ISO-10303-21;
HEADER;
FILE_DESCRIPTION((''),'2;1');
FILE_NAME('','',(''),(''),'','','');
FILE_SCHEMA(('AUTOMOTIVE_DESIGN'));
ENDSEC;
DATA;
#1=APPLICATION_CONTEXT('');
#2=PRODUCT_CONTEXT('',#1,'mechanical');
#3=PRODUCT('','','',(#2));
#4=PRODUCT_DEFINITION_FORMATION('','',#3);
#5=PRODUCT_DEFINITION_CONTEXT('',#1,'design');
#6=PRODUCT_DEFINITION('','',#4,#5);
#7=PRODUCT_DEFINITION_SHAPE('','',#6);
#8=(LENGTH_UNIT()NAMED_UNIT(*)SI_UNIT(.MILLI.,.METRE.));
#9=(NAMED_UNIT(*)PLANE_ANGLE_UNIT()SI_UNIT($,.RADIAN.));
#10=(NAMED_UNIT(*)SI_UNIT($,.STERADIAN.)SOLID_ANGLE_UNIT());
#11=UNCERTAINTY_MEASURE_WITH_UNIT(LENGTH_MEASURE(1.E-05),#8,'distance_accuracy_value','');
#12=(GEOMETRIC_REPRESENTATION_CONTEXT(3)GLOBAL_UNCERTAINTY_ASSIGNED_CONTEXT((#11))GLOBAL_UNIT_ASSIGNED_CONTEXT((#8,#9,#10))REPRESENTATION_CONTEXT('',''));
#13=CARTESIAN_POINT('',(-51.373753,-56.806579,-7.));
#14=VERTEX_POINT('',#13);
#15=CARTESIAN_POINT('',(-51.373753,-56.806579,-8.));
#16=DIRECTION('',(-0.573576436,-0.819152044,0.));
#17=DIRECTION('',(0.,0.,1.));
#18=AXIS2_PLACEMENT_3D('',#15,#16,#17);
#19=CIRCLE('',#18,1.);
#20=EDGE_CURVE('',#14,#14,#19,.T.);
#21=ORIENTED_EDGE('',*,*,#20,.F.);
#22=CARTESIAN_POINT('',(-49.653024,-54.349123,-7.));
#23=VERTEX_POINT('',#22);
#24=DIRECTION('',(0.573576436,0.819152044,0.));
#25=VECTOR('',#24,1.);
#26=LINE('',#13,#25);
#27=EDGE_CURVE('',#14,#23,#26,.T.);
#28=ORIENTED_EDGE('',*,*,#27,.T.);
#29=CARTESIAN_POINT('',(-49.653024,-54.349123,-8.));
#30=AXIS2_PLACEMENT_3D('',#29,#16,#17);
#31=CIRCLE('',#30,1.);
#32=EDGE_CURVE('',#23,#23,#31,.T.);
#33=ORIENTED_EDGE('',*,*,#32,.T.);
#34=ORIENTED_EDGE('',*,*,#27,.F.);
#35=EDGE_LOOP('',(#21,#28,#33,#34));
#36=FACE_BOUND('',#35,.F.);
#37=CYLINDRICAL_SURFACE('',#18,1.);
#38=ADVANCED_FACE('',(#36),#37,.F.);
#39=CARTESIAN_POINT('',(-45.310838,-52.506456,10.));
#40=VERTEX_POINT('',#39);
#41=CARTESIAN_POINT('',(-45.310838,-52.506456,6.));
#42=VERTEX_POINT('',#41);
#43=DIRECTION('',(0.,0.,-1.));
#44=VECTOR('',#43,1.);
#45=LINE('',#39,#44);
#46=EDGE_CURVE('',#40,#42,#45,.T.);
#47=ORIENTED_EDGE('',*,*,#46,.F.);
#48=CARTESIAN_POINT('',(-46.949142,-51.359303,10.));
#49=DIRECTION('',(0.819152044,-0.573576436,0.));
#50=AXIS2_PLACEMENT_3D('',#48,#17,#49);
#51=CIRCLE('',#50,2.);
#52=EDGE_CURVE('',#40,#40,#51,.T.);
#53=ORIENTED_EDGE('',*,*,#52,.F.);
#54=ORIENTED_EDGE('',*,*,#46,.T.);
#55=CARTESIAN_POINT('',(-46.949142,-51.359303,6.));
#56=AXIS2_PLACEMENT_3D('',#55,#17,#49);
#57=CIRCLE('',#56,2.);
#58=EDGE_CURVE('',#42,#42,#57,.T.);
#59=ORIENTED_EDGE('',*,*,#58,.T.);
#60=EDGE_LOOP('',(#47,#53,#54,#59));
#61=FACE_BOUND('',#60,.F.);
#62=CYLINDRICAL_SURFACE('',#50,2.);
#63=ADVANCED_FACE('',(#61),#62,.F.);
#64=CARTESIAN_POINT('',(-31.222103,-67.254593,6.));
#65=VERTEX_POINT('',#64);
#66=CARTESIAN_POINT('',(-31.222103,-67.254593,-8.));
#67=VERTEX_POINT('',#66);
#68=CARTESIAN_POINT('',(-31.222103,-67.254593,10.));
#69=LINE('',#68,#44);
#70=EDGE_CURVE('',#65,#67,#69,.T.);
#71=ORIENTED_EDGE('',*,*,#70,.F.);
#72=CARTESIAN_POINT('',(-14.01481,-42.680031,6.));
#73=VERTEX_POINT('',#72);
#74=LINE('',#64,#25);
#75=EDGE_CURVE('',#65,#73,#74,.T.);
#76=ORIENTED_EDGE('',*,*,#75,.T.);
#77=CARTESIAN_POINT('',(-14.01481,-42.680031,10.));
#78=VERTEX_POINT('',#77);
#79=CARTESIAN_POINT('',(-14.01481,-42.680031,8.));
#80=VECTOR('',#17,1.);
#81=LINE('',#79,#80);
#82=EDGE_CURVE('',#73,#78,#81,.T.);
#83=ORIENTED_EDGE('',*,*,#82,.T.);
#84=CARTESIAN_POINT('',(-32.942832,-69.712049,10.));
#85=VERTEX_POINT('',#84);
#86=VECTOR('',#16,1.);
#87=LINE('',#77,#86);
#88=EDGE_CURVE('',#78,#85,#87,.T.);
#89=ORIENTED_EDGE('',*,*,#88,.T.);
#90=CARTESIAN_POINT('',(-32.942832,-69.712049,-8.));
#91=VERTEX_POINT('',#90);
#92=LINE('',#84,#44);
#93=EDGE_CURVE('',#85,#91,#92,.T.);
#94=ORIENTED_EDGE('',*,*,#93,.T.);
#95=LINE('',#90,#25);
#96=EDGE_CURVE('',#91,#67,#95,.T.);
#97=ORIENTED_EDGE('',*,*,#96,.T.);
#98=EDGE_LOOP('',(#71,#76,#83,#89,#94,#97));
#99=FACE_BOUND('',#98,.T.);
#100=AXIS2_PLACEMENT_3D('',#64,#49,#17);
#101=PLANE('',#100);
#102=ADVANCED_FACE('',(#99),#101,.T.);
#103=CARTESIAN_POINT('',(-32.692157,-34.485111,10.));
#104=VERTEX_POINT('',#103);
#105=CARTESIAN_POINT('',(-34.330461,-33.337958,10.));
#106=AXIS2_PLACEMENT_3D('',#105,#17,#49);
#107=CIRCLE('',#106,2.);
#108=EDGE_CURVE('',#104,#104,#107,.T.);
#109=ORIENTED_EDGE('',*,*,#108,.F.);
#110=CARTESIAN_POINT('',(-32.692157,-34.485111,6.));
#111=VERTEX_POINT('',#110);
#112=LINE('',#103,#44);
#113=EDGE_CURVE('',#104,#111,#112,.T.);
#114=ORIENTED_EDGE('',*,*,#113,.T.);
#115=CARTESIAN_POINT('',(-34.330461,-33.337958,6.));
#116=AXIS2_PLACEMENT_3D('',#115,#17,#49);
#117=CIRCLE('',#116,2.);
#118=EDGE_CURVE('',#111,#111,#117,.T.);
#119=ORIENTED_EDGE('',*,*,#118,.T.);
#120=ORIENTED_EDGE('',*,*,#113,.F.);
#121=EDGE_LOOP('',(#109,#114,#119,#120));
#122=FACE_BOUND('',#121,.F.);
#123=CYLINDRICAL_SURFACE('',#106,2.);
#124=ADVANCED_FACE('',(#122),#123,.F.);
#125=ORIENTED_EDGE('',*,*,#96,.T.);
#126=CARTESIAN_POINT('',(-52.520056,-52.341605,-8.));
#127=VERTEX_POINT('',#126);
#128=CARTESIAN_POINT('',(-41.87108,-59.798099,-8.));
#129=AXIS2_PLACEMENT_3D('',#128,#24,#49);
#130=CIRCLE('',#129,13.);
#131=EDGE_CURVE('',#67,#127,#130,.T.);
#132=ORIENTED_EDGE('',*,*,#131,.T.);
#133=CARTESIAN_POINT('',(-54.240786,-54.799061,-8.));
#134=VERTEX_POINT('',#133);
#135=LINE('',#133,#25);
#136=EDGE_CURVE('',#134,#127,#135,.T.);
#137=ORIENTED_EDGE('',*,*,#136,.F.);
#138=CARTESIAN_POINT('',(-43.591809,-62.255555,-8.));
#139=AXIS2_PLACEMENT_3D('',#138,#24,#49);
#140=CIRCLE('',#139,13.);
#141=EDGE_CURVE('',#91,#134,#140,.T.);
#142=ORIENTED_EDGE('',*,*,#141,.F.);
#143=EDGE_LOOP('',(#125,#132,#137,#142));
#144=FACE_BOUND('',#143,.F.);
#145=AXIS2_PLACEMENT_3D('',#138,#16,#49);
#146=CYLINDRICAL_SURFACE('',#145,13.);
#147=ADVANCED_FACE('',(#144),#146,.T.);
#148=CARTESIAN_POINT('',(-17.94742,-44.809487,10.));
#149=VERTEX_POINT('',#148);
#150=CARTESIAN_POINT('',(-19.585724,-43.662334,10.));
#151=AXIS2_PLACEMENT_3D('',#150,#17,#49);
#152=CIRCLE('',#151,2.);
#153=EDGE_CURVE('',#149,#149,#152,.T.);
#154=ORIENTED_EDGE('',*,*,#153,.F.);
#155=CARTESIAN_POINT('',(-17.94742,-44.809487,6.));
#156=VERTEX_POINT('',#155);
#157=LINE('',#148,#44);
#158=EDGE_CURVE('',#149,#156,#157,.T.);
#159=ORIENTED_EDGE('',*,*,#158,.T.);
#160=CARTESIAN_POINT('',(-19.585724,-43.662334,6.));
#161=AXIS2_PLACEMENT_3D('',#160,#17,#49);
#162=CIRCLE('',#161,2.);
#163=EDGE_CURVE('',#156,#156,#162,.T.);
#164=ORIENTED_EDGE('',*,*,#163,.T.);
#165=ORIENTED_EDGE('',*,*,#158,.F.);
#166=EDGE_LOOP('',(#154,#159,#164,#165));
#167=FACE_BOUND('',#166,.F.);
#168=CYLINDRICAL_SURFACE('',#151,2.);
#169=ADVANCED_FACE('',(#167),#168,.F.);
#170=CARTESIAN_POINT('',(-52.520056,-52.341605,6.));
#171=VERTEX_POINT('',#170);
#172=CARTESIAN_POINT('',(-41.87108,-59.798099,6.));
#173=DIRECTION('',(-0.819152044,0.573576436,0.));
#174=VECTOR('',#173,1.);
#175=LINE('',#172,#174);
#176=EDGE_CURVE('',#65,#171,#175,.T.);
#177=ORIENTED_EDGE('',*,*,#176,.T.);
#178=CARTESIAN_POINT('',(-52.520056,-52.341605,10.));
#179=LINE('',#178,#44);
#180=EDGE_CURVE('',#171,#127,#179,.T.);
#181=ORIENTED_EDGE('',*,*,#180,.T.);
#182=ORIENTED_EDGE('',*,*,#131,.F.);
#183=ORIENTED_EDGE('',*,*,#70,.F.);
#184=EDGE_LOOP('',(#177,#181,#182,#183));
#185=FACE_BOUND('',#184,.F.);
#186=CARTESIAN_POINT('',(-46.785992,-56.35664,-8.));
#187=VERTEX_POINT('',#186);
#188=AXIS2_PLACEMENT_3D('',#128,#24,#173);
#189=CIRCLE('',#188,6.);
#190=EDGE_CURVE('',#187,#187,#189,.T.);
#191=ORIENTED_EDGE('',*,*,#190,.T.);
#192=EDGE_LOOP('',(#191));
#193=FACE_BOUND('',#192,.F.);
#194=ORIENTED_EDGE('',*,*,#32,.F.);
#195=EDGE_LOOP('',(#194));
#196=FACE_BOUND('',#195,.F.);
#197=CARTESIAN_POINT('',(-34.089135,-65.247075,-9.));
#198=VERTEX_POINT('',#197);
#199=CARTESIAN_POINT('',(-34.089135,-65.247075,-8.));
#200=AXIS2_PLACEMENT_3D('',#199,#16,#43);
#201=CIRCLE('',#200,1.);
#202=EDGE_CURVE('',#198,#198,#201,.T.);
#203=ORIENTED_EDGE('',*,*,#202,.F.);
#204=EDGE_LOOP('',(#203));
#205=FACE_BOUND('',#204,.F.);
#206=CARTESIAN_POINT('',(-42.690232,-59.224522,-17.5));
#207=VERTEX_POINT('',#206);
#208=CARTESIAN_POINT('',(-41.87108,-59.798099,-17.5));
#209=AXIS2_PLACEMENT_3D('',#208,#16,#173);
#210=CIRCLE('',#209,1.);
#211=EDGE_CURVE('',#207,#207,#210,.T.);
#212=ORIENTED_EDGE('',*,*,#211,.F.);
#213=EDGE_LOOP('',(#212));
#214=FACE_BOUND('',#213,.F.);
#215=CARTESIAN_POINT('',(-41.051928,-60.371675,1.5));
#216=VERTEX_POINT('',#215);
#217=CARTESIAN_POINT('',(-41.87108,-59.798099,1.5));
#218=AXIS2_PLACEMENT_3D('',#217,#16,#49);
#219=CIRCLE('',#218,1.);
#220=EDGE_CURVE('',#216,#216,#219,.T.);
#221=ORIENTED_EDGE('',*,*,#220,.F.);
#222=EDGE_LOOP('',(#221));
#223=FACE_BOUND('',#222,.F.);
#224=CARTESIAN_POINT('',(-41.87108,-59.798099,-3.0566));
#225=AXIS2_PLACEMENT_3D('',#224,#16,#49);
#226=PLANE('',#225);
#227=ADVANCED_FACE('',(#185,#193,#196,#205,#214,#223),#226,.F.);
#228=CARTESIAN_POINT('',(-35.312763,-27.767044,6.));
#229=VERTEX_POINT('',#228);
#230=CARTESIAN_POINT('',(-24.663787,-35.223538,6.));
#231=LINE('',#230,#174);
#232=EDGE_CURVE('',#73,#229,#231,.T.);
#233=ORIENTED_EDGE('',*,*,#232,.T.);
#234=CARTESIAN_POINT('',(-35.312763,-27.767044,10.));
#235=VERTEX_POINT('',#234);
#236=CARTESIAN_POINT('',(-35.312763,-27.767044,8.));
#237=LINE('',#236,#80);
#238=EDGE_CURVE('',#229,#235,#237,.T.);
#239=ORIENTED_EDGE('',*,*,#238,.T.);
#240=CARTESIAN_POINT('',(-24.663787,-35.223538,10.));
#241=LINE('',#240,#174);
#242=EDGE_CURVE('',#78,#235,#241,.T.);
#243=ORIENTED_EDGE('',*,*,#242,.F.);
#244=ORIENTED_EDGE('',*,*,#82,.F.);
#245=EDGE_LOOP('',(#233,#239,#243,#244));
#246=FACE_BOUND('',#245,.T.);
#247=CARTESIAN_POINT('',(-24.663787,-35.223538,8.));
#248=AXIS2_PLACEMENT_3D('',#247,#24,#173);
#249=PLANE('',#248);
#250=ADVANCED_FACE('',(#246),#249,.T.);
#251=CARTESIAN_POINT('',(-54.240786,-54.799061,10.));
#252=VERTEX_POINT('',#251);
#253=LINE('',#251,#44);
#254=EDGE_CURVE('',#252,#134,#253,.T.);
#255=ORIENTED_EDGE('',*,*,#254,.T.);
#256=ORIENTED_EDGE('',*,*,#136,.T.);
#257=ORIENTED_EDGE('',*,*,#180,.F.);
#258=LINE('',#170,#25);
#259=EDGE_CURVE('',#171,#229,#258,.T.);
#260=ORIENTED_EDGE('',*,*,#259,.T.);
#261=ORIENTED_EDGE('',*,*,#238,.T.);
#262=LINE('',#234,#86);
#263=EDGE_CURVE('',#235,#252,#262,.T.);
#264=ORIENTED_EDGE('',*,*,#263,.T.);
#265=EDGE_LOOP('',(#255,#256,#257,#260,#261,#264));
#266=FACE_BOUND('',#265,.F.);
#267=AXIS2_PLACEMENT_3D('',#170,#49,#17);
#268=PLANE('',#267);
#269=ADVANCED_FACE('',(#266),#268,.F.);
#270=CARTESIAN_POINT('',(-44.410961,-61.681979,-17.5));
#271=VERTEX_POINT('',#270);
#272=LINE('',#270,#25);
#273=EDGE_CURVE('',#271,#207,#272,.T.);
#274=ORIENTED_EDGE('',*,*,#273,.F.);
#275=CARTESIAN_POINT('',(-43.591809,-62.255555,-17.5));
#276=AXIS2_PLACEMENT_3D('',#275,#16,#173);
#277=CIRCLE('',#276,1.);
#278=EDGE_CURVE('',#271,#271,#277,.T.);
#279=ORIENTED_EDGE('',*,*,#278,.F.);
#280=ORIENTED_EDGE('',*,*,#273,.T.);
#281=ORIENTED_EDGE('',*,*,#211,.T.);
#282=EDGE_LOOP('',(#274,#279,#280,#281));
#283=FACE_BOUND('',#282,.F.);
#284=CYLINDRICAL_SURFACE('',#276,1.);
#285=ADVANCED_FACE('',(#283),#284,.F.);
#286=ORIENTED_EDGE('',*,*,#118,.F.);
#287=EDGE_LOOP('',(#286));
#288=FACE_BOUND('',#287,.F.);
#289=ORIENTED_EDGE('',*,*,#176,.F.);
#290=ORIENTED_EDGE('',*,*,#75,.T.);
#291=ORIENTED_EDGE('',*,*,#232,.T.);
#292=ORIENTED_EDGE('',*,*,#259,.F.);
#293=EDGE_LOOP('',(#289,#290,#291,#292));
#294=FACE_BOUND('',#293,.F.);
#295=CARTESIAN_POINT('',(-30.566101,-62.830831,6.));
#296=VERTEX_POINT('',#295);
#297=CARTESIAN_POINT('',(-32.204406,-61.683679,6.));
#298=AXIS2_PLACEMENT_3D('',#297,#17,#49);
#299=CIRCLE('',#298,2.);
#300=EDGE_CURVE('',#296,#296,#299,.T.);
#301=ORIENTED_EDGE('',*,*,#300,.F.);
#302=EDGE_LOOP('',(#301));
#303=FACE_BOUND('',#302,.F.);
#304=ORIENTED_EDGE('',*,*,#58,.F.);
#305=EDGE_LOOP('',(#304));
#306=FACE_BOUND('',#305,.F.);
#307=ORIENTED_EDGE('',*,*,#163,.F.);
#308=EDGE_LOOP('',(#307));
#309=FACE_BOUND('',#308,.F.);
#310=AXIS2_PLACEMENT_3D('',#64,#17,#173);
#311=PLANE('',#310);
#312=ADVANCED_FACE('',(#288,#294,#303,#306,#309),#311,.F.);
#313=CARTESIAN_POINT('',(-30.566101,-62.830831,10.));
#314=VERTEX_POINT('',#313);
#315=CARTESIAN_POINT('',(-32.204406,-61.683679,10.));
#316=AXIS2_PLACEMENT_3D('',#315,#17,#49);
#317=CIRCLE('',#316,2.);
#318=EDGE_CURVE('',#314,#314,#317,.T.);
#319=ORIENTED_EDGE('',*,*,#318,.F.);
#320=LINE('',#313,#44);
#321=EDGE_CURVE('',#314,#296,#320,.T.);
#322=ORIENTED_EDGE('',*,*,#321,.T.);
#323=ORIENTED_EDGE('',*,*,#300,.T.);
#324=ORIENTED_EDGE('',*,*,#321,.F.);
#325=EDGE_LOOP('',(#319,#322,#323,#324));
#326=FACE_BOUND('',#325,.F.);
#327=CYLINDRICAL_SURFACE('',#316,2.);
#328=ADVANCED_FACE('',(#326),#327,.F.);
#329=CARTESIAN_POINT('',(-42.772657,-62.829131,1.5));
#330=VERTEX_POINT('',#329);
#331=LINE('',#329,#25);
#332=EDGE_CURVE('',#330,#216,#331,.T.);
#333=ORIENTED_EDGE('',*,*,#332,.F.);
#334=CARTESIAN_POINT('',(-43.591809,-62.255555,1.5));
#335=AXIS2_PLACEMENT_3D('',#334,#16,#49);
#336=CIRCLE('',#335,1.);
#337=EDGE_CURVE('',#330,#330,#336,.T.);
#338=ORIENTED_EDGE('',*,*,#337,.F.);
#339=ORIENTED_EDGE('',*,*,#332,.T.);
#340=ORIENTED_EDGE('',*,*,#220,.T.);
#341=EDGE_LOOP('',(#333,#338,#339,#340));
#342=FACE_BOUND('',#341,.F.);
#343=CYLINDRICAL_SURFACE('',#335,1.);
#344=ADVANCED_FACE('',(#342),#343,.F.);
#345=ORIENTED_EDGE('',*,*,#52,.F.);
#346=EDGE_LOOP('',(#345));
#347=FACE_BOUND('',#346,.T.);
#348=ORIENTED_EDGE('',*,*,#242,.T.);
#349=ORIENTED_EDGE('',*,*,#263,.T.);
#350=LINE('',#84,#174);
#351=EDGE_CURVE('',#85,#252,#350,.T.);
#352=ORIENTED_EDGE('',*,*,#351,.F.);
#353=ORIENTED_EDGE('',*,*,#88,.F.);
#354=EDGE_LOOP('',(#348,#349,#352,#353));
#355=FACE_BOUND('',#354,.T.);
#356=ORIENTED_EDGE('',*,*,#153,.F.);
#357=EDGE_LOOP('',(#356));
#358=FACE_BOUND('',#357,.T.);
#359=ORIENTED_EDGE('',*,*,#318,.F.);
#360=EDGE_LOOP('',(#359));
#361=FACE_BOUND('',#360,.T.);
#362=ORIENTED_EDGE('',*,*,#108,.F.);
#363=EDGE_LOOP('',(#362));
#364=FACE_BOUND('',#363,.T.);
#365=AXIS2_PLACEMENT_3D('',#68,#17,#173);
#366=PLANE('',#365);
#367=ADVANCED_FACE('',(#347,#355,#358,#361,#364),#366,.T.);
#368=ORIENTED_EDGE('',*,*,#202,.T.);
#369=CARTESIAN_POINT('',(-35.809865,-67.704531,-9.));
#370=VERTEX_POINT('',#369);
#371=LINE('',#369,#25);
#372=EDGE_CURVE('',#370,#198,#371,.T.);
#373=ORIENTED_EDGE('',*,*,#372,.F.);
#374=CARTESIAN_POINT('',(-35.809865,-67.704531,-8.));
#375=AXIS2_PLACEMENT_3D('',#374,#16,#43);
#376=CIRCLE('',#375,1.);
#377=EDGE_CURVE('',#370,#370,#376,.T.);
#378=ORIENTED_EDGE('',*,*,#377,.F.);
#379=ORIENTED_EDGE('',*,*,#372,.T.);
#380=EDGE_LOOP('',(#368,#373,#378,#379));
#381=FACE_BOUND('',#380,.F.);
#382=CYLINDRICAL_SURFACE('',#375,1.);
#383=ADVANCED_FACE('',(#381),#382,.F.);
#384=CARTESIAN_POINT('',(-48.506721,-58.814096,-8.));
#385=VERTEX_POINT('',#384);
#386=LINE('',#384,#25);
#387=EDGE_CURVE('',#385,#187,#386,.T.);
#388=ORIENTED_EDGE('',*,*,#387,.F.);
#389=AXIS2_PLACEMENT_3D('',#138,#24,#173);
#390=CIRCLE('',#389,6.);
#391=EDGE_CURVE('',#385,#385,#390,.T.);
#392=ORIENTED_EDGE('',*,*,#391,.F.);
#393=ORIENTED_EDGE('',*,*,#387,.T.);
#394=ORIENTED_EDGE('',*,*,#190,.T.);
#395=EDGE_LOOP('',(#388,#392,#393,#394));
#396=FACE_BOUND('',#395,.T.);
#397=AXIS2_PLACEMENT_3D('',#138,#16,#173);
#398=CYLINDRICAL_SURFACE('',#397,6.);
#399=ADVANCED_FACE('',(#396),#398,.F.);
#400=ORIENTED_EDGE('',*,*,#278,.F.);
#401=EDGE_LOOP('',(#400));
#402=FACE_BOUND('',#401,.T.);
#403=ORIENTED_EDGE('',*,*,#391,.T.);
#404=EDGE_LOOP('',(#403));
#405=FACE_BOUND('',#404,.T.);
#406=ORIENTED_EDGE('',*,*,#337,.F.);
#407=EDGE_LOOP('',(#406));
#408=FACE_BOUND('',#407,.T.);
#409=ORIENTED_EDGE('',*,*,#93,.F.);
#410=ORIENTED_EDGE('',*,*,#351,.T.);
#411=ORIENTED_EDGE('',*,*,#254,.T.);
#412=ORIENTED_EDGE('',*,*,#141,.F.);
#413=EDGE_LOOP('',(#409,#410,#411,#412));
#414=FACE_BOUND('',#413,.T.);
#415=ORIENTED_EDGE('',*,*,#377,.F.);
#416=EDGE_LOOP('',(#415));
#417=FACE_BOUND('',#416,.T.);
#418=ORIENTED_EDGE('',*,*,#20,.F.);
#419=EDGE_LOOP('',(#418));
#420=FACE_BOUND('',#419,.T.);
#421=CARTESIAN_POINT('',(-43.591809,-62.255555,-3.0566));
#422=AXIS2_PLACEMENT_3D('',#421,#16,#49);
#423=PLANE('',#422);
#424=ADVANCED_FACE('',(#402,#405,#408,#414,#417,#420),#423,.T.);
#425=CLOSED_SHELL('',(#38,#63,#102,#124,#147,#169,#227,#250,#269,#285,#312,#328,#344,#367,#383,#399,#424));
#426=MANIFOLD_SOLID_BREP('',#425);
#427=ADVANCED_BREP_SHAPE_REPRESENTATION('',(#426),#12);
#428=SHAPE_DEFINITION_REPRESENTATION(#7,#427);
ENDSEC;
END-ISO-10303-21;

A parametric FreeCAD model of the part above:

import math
import FreeCAD as App
import Part
import Sketcher
from FreeCAD import Vector

doc = App.newDocument("Part")
body = doc.addObject("PartDesign::Body", "Body")

# Sketch on XZ plane
sketch1 = doc.addObject("Sketcher::SketchObject", "Sketch")
body.addObject(sketch1)
sketch1.AttachmentSupport = (doc.XZ_Plane, [""])
sketch1.MapMode = "FlatFace"
sketch1.addGeometry([
    Part.LineSegment(Vector(13, 18, 0), Vector(-13, 18, 0)),  # 0
    Part.LineSegment(Vector(-13, 18, 0), Vector(-13, 0, 0)),  # 1
    Part.ArcOfCircle(Part.Circle(Vector(0, 0, 0), Vector(0, 0, 1), 13), math.radians(180), math.radians(360)),  # 2
    Part.LineSegment(Vector(13, 0, 0), Vector(13, 18, 0)),  # 3
    Part.Circle(Vector(0, 0, 0), Vector(0, 0, 1), 6),  # 4
], False)
sketch1.addConstraint([
    Sketcher.Constraint("Coincident", 0, 2, 1, 1),
    Sketcher.Constraint("Tangent", 1, 2, 2, 1),
    Sketcher.Constraint("Tangent", 2, 2, 3, 1),
    Sketcher.Constraint("Coincident", 3, 2, 0, 1),
    Sketcher.Constraint("Horizontal", 0),
    Sketcher.Constraint("Vertical", 1),
    Sketcher.Constraint("Vertical", 3),
    Sketcher.Constraint("Coincident", 2, 3, -1, 1),
    Sketcher.Constraint("Coincident", 4, 3, -1, 1),
    Sketcher.Constraint("Diameter", 4, 12.0),
    Sketcher.Constraint("Radius", 2, 13.0),
    Sketcher.Constraint("DistanceY", 1, 2, 1, 1, 18.0),
])
pad1 = doc.addObject("PartDesign::Pad", "Pad")
body.addObject(pad1)
pad1.Profile = sketch1
pad1.Length = 3

# Sketch on XZ plane
sketch2 = doc.addObject("Sketcher::SketchObject", "Sketch001")
body.addObject(sketch2)
sketch2.AttachmentSupport = (doc.XZ_Plane, [""])
sketch2.MapMode = "FlatFace"
sketch2.AttachmentOffset = App.Placement(Vector(0, 0, 3), App.Rotation())
sketch2.addGeometry([
    Part.LineSegment(Vector(-13, 18, 0), Vector(-13, 14, 0)),
    Part.LineSegment(Vector(-13, 14, 0), Vector(13, 14, 0)),
    Part.LineSegment(Vector(13, 14, 0), Vector(13, 18, 0)),
    Part.LineSegment(Vector(13, 18, 0), Vector(-13, 18, 0)),
], False)
sketch2.addConstraint([
    Sketcher.Constraint("Coincident", 0, 2, 1, 1),
    Sketcher.Constraint("Coincident", 1, 2, 2, 1),
    Sketcher.Constraint("Coincident", 2, 2, 3, 1),
    Sketcher.Constraint("Coincident", 3, 2, 0, 1),
    Sketcher.Constraint("Vertical", 0),
    Sketcher.Constraint("Horizontal", 1),
    Sketcher.Constraint("Vertical", 2),
    Sketcher.Constraint("Horizontal", 3),
    Sketcher.Constraint("DistanceX", 1, 1, 1, 2, 26.0),
    Sketcher.Constraint("DistanceY", 0, 2, 0, 1, 4.0),
    Sketcher.Constraint("DistanceX", 0, 2, -1, 1, 13.0),
    Sketcher.Constraint("DistanceY", -1, 1, 0, 2, 14.0),
])
pad2 = doc.addObject("PartDesign::Pad", "Pad001")
body.addObject(pad2)
pad2.Profile = sketch2
pad2.Length = 30

# Sketch on XY plane
sketch3 = doc.addObject("Sketcher::SketchObject", "Sketch002")
body.addObject(sketch3)
sketch3.AttachmentSupport = (doc.XY_Plane, [""])
sketch3.MapMode = "FlatFace"
sketch3.AttachmentOffset = App.Placement(Vector(0, 0, 18), App.Rotation())
sketch3.addGeometry([
    Part.Circle(Vector(9, -7, 0), Vector(0, 0, 1), 2),
    Part.Circle(Vector(-9, -7, 0), Vector(0, 0, 1), 2),
    Part.Circle(Vector(9, -29, 0), Vector(0, 0, 1), 2),
    Part.Circle(Vector(-9, -29, 0), Vector(0, 0, 1), 2),
], False)
sketch3.addConstraint([
    Sketcher.Constraint("Equal", 0, 1),
    Sketcher.Constraint("Equal", 1, 2),
    Sketcher.Constraint("Equal", 2, 3),
    Sketcher.Constraint("Symmetric", 0, 3, 1, 3, -2),
    Sketcher.Constraint("Symmetric", 2, 3, 3, 3, -2),
    Sketcher.Constraint("Vertical", 0, 3, 2, 3),
    Sketcher.Constraint("Diameter", 0, 4.0),
    Sketcher.Constraint("DistanceX", -1, 1, 0, 3, 9.0),
    Sketcher.Constraint("DistanceY", 0, 3, -1, 1, 7.0),
    Sketcher.Constraint("DistanceY", 2, 3, -1, 1, 29.0),
])
pocket1 = doc.addObject("PartDesign::Pocket", "Pocket")
body.addObject(pocket1)
pocket1.Profile = sketch3
pocket1.Type = "ThroughAll"

# Sketch on XZ plane
sketch4 = doc.addObject("Sketcher::SketchObject", "Sketch003")
body.addObject(sketch4)
sketch4.AttachmentSupport = (doc.XZ_Plane, [""])
sketch4.MapMode = "FlatFace"
sketch4.addGeometry(Part.Circle(Vector(0, -9.5, 0), Vector(0, 0, 1), 1), False)
sketch4.addConstraint([
    Sketcher.Constraint("PointOnObject", 0, 3, -2),
    Sketcher.Constraint("Diameter", 0, 2.0),
    Sketcher.Constraint("DistanceY", 0, 3, -1, 1, 9.5),
])
pocket2 = doc.addObject("PartDesign::Pocket", "Pocket001")
body.addObject(pocket2)
pocket2.Profile = sketch4
pocket2.Type = "ThroughAll"
pocket2.Reversed = True
doc.recompute()

polarpattern = doc.addObject("PartDesign::PolarPattern", "PolarPattern")
body.addObject(polarpattern)
polarpattern.Originals = [pocket2]
polarpattern.Axis = (doc.Y_Axis, [""])
polarpattern.Angle = 360
polarpattern.Occurrences = 4
body.Tip = polarpattern
body2 = doc.addObject("PartDesign::Body", "Body001")
doc.recompute()

body.Placement = App.Placement(Vector(-43.591809, -62.255555, -8), App.Rotation(Vector(0, 0, 1), 145))
boolean = doc.addObject("PartDesign::Boolean", "Boolean")
body2.addObject(boolean)
boolean.Type = "Fuse"
boolean.addObjects([body])

doc.recompute()
